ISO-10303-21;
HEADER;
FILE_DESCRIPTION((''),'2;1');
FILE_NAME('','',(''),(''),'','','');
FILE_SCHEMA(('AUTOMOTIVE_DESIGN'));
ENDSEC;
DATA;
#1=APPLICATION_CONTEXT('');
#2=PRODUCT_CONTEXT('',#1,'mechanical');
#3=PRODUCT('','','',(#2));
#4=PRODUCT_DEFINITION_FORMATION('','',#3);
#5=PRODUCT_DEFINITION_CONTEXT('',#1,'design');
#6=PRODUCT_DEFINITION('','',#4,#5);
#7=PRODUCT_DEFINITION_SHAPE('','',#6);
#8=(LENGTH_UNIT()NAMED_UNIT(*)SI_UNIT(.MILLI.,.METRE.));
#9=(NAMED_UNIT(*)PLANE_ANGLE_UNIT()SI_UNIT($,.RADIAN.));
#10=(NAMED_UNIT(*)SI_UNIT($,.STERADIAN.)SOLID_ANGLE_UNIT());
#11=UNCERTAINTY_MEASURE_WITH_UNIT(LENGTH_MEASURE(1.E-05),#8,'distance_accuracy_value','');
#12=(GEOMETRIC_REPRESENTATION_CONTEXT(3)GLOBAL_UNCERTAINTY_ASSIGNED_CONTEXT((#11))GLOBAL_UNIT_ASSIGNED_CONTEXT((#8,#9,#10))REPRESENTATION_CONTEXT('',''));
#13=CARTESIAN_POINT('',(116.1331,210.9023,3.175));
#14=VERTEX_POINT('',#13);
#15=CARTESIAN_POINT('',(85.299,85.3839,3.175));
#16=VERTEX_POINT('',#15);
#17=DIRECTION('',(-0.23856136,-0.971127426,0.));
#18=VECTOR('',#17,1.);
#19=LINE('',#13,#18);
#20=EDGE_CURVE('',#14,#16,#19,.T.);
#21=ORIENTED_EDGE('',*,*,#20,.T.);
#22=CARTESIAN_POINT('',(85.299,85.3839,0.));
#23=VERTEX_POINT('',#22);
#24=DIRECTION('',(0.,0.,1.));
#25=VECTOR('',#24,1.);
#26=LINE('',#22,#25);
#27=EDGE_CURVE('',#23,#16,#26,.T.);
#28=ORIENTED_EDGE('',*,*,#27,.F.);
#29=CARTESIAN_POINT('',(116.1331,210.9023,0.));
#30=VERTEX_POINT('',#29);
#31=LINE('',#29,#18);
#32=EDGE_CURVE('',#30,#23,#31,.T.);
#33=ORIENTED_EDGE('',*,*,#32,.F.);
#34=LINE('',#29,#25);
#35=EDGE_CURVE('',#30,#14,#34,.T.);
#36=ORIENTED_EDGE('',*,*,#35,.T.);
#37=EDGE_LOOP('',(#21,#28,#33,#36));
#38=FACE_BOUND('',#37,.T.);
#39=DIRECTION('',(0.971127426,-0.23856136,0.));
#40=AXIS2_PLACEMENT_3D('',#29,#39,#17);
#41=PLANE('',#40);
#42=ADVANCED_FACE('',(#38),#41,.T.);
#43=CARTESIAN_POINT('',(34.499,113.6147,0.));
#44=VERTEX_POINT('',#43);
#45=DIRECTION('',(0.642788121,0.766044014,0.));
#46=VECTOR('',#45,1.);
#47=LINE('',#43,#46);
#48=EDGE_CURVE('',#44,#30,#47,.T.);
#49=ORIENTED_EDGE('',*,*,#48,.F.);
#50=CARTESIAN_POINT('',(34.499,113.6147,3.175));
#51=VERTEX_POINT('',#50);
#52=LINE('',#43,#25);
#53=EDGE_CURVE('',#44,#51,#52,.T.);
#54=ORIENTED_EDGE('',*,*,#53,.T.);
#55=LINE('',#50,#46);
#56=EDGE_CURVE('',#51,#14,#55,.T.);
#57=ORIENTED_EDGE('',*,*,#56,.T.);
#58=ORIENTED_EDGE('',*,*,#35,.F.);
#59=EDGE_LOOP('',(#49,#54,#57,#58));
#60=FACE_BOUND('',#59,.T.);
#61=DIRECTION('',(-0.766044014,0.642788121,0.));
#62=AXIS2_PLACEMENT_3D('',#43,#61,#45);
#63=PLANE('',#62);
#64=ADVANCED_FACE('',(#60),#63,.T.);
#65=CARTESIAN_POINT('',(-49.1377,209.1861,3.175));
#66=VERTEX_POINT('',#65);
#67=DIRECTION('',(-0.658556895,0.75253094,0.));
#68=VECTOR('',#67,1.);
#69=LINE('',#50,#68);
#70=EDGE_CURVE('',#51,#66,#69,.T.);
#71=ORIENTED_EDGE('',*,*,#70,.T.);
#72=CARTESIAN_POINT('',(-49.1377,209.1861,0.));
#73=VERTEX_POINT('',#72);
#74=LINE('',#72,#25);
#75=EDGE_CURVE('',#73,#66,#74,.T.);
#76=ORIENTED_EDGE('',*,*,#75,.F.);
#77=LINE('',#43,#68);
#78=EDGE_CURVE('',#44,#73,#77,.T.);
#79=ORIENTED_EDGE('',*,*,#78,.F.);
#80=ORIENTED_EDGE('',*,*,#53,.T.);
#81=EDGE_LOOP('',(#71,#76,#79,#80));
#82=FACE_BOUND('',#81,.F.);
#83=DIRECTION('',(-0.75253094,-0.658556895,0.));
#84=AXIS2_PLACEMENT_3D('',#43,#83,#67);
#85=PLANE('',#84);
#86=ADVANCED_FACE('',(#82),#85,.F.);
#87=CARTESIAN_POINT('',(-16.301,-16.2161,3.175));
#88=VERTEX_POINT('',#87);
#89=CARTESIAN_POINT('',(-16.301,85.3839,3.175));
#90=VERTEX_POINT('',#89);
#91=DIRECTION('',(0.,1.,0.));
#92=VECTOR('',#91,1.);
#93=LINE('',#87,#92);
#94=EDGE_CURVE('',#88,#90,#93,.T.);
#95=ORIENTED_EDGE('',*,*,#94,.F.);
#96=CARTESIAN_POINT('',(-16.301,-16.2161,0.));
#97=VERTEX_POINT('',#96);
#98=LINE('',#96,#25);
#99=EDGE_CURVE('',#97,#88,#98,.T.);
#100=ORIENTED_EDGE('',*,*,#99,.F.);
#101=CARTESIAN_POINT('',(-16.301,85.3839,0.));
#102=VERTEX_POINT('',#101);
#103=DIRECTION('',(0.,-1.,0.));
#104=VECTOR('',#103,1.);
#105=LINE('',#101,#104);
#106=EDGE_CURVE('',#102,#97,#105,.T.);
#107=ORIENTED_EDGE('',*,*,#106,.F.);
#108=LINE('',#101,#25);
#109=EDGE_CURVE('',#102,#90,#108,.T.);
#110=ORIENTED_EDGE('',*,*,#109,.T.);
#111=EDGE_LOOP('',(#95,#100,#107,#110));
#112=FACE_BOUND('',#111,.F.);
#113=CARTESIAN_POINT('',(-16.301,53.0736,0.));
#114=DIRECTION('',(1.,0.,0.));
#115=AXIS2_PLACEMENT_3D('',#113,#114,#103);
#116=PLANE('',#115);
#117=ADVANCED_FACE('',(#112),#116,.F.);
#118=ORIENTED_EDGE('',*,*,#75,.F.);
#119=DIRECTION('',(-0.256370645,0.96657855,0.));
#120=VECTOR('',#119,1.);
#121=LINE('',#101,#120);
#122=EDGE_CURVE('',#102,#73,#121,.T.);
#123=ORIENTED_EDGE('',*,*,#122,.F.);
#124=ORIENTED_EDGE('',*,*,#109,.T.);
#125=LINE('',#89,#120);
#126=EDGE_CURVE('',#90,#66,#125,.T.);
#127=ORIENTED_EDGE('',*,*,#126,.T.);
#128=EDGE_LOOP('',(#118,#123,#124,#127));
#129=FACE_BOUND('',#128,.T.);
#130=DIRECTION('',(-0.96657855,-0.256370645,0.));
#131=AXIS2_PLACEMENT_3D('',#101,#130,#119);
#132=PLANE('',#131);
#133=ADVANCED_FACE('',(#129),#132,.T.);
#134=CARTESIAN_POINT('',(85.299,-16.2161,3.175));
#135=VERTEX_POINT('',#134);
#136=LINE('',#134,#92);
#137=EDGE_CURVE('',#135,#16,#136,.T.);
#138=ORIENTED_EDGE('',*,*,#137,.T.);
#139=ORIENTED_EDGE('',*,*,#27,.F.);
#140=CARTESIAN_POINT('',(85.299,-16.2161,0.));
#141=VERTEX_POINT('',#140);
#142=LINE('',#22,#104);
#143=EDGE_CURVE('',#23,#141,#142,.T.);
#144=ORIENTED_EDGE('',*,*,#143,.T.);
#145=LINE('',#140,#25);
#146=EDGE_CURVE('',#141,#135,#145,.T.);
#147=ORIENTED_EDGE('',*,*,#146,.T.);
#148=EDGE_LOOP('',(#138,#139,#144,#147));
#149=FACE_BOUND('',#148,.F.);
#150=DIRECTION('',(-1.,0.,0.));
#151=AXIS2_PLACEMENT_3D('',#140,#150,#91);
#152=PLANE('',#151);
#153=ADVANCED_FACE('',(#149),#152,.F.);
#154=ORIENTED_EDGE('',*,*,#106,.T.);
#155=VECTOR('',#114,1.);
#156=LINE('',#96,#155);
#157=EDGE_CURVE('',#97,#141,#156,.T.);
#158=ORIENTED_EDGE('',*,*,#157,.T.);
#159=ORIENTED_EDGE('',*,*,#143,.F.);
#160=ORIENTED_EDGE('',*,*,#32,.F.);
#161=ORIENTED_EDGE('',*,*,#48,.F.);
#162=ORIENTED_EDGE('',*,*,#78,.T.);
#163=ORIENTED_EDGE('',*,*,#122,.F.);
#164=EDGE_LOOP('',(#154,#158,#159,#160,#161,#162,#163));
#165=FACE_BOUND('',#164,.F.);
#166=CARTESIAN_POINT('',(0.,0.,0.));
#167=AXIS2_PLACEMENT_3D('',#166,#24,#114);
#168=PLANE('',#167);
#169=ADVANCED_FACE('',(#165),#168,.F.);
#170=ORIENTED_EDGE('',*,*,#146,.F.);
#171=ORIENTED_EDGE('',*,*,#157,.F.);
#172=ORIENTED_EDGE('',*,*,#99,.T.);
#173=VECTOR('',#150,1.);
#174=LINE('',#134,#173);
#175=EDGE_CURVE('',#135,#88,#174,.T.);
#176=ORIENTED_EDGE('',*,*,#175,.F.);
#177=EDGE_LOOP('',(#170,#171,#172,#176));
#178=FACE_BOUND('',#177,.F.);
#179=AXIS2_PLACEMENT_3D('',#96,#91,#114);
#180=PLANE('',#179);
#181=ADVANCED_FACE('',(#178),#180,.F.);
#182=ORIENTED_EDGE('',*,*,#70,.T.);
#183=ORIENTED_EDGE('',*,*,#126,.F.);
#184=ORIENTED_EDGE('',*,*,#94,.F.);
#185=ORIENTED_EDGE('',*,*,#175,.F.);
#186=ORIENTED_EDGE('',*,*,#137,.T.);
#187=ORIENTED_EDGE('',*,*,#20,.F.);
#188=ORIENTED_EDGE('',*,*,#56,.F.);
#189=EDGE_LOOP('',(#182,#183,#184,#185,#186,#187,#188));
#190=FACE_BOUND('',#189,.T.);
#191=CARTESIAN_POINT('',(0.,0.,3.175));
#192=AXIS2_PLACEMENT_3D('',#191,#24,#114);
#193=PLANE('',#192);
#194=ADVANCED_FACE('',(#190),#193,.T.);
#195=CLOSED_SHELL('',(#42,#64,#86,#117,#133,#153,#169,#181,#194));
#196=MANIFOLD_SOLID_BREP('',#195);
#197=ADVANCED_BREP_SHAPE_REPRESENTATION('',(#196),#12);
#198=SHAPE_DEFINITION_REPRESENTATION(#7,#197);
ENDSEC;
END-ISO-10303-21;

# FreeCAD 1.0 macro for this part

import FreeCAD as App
import Part
import Sketcher
from FreeCAD import Vector
Q = App.Units.Quantity

doc = App.newDocument("Part")
body = doc.addObject("PartDesign::Body", "Body")

sketch1 = body.newObject("Sketcher::SketchObject", "Sketch")
sketch1.AttachmentSupport = (doc.getObject("XY_Plane"), [""])
sketch1.MapMode = "FlatFace"
sketch1.addGeometry([
    Part.LineSegment(Vector(-16, -16, 0), Vector(85, -16, 0)),
    Part.LineSegment(Vector(85, -16, 0), Vector(85, 85, 0)),
    Part.LineSegment(Vector(85, 85, 0), Vector(116, 211, 0)),
    Part.LineSegment(Vector(116, 211, 0), Vector(34, 114, 0)),
    Part.LineSegment(Vector(34, 114, 0), Vector(-49, 209, 0)),
    Part.LineSegment(Vector(-49, 209, 0), Vector(-16, 85, 0)),
    Part.LineSegment(Vector(-16, 85, 0), Vector(-16, -16, 0)),
], False)
sketch1.addConstraint([
    Sketcher.Constraint("Coincident", 0, 2, 1, 1),
    Sketcher.Constraint("Coincident", 1, 2, 2, 1),
    Sketcher.Constraint("Coincident", 2, 2, 3, 1),
    Sketcher.Constraint("Coincident", 3, 2, 4, 1),
    Sketcher.Constraint("Coincident", 4, 2, 5, 1),
    Sketcher.Constraint("Coincident", 5, 2, 6, 1),
    Sketcher.Constraint("Coincident", 6, 2, 0, 1),
    Sketcher.Constraint("Horizontal", 0),
    Sketcher.Constraint("Vertical", 1),
    Sketcher.Constraint("Vertical", 6),
    Sketcher.Constraint("Horizontal", 1, 2, 5, 2),
    Sketcher.Constraint("Equal", 0, 1),
    Sketcher.Constraint("Equal", 3, 4),
    Sketcher.Constraint("DistanceX", 0, 1, 0, 2, Q("4 in")),
    Sketcher.Constraint("Distance", 3, Q("5 in")),
    Sketcher.Constraint("DistanceX", 3, 2, 1, 2, Q("2 in")),
    Sketcher.Constraint("Angle", 3, Q("-130 deg")),
    Sketcher.Constraint("Angle", 4, Q("131.19 deg")),
    Sketcher.Constraint("Distance", 2, Q("5.0886 in")),
    Sketcher.Constraint("DistanceX", -1, 1, 0, 2, Q("85.299 mm")),
    Sketcher.Constraint("DistanceY", 0, 2, -1, 1, Q("16.216 mm")),
])
pad1 = body.newObject("PartDesign::Pad", "Pad")
pad1.Profile = sketch1
pad1.Length = Q("0.125 in")

doc.recompute()
